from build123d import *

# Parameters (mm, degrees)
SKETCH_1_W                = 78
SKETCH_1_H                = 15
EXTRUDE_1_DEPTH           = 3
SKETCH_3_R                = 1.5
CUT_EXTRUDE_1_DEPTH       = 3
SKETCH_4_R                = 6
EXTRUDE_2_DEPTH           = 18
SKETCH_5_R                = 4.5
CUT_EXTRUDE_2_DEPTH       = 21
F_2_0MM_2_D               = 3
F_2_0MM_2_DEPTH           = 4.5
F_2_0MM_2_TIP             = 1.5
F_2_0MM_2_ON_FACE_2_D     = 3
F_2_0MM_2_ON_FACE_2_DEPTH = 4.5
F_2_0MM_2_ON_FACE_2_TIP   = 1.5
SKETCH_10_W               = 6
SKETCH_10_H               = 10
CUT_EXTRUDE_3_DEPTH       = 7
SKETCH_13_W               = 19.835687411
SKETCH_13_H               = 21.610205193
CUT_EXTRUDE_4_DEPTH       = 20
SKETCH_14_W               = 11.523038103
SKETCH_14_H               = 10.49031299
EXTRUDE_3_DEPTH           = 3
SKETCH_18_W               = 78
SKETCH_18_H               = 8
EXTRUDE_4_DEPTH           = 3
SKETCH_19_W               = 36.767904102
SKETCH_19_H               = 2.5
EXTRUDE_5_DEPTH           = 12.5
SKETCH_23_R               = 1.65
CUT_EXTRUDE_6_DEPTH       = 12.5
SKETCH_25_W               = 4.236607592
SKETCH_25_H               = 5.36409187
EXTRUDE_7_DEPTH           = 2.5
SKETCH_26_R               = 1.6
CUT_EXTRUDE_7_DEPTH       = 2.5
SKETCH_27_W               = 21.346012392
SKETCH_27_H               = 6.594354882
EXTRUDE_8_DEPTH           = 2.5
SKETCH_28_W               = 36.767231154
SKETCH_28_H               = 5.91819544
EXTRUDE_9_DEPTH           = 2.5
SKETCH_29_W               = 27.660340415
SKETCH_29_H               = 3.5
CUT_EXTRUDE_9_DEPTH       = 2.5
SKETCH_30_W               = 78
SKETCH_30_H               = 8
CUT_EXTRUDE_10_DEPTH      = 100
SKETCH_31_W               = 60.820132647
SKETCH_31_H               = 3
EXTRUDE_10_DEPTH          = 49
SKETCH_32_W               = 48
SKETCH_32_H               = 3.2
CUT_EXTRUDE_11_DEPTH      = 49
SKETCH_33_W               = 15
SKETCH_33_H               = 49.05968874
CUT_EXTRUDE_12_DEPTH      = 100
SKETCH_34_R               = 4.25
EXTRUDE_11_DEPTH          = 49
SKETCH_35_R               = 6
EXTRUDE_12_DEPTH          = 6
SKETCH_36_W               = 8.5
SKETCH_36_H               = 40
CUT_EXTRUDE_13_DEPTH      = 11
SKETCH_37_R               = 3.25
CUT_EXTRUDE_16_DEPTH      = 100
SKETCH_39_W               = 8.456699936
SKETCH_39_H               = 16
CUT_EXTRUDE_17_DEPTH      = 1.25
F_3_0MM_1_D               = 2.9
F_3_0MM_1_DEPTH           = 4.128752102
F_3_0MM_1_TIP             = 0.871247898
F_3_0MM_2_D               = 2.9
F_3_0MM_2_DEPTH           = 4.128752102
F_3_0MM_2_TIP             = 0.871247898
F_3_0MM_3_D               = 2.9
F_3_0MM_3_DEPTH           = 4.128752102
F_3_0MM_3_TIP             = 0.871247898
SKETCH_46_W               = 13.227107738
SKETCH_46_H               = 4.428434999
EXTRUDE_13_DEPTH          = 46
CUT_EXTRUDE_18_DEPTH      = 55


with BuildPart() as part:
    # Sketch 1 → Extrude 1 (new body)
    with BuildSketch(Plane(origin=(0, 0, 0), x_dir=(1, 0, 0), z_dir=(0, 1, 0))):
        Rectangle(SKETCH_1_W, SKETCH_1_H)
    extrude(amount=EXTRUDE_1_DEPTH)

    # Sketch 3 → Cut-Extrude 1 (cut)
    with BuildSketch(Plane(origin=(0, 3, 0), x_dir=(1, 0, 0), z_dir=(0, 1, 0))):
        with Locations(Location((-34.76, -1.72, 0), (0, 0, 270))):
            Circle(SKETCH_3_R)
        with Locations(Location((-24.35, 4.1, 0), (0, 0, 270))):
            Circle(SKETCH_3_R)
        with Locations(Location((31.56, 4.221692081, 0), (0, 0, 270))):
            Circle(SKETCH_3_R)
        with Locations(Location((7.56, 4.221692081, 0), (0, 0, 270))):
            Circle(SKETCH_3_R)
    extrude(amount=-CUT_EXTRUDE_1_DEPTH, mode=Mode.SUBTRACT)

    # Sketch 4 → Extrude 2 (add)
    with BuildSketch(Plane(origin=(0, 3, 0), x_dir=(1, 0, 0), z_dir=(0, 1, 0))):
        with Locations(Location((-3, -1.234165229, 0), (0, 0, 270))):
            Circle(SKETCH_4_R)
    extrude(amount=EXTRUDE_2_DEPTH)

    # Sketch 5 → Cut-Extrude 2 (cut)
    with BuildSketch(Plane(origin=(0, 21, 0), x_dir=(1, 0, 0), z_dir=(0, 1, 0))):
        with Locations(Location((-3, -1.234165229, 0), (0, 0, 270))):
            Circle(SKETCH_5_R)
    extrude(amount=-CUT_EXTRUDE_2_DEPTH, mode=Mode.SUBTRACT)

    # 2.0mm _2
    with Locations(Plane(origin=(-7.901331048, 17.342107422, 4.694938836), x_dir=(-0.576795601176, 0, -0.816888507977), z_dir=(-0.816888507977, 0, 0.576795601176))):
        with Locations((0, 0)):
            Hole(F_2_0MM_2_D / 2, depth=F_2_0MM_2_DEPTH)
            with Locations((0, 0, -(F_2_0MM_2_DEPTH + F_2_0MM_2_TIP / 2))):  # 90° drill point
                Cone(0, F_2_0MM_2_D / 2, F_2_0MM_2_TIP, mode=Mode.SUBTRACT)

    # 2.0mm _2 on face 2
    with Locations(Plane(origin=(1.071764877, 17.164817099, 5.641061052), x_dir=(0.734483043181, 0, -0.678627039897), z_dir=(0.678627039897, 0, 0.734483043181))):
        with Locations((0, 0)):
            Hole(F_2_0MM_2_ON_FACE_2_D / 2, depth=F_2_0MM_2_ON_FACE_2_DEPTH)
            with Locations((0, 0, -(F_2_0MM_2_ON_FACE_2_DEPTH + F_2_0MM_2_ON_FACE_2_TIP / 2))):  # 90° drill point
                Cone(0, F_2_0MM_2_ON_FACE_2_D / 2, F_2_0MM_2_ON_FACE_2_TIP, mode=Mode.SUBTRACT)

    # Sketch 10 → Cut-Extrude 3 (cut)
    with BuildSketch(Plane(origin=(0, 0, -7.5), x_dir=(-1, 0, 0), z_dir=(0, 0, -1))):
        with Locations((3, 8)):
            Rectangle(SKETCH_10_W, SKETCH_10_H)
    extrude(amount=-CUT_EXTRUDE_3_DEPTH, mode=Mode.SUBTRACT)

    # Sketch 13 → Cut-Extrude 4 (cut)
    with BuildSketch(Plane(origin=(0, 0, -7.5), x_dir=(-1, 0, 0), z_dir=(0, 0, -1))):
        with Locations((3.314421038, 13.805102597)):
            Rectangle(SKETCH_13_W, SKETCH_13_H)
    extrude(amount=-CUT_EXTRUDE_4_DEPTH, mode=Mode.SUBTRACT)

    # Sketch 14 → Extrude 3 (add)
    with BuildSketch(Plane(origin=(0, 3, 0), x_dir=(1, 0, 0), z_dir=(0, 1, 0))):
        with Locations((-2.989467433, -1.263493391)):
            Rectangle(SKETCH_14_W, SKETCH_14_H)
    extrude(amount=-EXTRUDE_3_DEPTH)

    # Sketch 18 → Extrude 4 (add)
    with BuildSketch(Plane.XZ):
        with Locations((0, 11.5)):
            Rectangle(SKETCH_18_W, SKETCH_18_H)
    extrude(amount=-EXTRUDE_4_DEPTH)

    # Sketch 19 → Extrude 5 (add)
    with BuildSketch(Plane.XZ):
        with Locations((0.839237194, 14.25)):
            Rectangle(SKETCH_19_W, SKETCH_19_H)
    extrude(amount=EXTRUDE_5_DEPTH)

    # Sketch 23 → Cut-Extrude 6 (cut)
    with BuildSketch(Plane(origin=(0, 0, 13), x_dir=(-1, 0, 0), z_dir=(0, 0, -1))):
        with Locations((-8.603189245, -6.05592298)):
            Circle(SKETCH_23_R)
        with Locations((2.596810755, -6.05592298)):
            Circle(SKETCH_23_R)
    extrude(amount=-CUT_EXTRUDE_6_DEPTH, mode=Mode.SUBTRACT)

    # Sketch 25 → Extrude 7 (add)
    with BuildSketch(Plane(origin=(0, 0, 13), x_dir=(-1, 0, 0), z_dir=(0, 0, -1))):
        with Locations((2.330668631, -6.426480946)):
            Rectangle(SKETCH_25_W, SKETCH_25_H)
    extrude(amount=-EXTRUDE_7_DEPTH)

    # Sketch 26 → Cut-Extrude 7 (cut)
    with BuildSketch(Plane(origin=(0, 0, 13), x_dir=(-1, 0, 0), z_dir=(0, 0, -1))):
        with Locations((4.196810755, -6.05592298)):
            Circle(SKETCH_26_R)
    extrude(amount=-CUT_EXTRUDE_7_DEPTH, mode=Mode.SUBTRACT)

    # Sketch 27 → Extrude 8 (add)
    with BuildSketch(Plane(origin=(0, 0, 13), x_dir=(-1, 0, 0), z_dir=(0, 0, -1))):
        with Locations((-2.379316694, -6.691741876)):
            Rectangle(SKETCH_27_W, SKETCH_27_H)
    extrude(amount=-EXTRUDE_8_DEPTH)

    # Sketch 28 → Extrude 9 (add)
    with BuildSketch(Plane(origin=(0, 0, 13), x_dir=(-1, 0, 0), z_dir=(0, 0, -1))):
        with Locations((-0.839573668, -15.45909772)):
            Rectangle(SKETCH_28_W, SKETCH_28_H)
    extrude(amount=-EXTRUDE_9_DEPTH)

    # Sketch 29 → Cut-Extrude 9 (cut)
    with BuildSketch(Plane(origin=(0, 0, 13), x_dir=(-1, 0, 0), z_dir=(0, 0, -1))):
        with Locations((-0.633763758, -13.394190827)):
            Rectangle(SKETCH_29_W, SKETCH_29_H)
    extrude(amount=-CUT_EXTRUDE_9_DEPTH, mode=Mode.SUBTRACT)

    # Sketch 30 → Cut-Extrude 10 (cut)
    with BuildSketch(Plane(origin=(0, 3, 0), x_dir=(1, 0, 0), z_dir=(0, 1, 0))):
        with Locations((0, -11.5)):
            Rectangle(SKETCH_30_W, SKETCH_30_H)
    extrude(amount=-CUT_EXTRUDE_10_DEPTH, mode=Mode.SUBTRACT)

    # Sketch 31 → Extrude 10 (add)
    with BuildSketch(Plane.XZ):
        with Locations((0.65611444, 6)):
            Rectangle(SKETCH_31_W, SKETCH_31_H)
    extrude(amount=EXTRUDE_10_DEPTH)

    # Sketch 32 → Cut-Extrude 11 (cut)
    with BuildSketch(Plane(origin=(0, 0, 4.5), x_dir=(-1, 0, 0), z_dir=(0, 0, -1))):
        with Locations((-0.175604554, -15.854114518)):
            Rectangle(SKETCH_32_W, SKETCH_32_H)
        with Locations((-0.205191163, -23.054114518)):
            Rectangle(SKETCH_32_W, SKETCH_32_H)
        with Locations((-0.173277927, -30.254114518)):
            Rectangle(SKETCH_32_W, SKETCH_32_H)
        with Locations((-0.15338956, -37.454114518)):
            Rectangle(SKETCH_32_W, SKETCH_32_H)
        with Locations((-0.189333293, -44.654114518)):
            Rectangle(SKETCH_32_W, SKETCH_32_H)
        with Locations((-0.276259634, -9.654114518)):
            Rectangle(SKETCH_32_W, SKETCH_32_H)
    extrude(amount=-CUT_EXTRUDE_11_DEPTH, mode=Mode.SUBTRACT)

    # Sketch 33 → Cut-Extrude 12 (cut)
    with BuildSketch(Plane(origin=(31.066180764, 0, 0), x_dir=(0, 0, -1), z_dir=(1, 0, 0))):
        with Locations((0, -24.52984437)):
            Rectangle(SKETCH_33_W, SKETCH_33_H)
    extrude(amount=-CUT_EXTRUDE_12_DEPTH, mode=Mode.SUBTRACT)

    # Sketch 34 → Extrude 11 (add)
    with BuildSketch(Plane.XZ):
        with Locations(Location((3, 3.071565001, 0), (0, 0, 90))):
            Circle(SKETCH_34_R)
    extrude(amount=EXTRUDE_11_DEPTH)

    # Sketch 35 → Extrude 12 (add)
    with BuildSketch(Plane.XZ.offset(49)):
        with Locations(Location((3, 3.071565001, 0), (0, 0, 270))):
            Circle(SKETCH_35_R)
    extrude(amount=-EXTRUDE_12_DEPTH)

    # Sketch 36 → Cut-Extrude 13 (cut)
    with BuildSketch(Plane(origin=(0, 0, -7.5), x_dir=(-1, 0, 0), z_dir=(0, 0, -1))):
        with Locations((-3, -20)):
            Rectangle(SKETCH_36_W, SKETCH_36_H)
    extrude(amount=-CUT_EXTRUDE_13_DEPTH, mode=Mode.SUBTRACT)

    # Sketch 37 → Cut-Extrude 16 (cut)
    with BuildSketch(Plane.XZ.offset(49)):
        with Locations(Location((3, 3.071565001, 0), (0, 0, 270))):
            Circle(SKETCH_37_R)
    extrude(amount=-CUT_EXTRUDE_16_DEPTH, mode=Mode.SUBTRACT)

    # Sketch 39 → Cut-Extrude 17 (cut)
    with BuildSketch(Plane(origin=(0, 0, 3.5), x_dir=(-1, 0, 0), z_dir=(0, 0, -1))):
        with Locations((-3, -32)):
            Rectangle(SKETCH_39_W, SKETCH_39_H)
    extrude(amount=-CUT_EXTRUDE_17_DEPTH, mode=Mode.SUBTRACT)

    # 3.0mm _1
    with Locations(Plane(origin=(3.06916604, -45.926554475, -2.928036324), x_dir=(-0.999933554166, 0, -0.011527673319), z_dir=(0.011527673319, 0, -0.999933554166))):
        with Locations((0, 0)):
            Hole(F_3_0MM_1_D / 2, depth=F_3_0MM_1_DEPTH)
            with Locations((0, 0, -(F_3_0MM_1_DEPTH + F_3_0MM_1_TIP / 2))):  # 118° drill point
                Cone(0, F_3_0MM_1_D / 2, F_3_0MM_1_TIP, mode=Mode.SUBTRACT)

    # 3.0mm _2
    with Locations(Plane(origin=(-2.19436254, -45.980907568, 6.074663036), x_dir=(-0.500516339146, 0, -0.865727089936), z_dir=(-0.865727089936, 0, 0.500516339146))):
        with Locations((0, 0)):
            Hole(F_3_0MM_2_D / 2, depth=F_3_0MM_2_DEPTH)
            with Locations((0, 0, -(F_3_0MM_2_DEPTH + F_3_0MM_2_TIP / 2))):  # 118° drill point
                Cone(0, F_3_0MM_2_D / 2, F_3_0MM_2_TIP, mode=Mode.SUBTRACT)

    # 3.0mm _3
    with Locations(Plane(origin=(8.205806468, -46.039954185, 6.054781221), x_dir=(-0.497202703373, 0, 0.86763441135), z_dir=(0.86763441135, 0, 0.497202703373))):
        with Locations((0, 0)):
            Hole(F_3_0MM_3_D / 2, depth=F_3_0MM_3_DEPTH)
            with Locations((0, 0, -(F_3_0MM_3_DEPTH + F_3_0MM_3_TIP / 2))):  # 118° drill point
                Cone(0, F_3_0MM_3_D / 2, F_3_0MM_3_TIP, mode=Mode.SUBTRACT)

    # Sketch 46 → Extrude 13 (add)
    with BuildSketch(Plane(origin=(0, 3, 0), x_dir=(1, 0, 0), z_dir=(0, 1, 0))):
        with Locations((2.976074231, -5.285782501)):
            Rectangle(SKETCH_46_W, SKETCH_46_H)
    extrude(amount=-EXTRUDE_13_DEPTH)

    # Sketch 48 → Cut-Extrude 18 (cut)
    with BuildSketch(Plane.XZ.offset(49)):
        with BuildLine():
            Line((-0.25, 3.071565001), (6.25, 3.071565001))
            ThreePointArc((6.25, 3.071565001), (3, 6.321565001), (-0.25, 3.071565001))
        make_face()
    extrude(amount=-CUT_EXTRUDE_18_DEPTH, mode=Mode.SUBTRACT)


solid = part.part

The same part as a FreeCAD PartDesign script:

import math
import FreeCAD as App
import Part
import Sketcher
Q = App.Units.Quantity

doc = App.newDocument("Part")
body = doc.addObject("PartDesign::Body", "Body")

# Sketch on XZ plane
sketch1 = body.newObject("Sketcher::SketchObject", "Sketch")
sketch1.AttachmentSupport = (doc.getObject("XZ_Plane"), [""])
sketch1.MapMode = "FlatFace"
sketch1.addGeometry([
    Part.LineSegment(App.Vector(-39, -7.5, 0), App.Vector(-39, 7.5, 0)),
    Part.LineSegment(App.Vector(-39, 7.5, 0), App.Vector(39, 7.5, 0)),
    Part.LineSegment(App.Vector(39, 7.5, 0), App.Vector(39, -7.5, 0)),
    Part.LineSegment(App.Vector(39, -7.5, 0), App.Vector(-39, -7.5, 0)),
], False)
sketch1.addConstraint([
    Sketcher.Constraint("Coincident", 0, 2, 1, 1),
    Sketcher.Constraint("Coincident", 1, 2, 2, 1),
    Sketcher.Constraint("Coincident", 2, 2, 3, 1),
    Sketcher.Constraint("Coincident", 3, 2, 0, 1),
    Sketcher.Constraint("Vertical", 0),
    Sketcher.Constraint("Horizontal", 1),
    Sketcher.Constraint("Vertical", 2),
    Sketcher.Constraint("Horizontal", 3),
    Sketcher.Constraint("Symmetric", 0, 2, 2, 2, -1, 1),
    Sketcher.Constraint("DistanceX", 1, 1, 1, 2, Q("78 mm")),
    Sketcher.Constraint("DistanceY", 0, 1, 0, 2, Q("15 mm")),
])
pad1 = body.newObject("PartDesign::Pad", "Pad")
pad1.Profile = sketch1
pad1.Length = 3
pad1.Reversed = True

# Sketch on XZ plane
sketch2 = body.newObject("Sketcher::SketchObject", "Sketch001")
sketch2.AttachmentSupport = (doc.getObject("XZ_Plane"), [""])
sketch2.MapMode = "FlatFace"
sketch2.AttachmentOffset = App.Placement(App.Vector(0, 0, -3), App.Rotation())
sketch2.addGeometry([
    Part.Circle(App.Vector(-34.76, 1.72, 0), App.Vector(0, 0, 1), 1.5),
    Part.Circle(App.Vector(-24.35, -4.1, 0), App.Vector(0, 0, 1), 1.5),
    Part.Circle(App.Vector(31.56, -4.221692, 0), App.Vector(0, 0, 1), 1.5),
    Part.Circle(App.Vector(7.56, -4.221692, 0), App.Vector(0, 0, 1), 1.5),
], False)
sketch2.addConstraint([
    Sketcher.Constraint("Equal", 0, 1),
    Sketcher.Constraint("Equal", 1, 2),
    Sketcher.Constraint("Equal", 2, 3),
    Sketcher.Constraint("Horizontal", 2, 3, 3, 3),
    Sketcher.Constraint("Diameter", 0, Q("3 mm")),
    Sketcher.Constraint("DistanceX", 3, 3, 2, 3, Q("24 mm")),
    Sketcher.Constraint("DistanceY", 1, 3, -1, 1, Q("4.1 mm")),
    Sketcher.Constraint("DistanceX", 0, 3, -1, 1, Q("34.76 mm")),
    Sketcher.Constraint("DistanceY", -1, 1, 0, 3, Q("1.72 mm")),
    Sketcher.Constraint("DistanceX", 1, 3, -1, 1, Q("24.35 mm")),
    Sketcher.Constraint("DistanceX", -1, 1, 2, 3, Q("31.56 mm")),
    Sketcher.Constraint("DistanceY", 2, 3, -1, 1, Q("4.221692 mm")),
])
pocket1 = body.newObject("PartDesign::Pocket", "Pocket")
pocket1.Profile = sketch2
pocket1.Length = 3
pocket1.Reversed = True

# Sketch on XZ plane
sketch3 = body.newObject("Sketcher::SketchObject", "Sketch002")
sketch3.AttachmentSupport = (doc.getObject("XZ_Plane"), [""])
sketch3.MapMode = "FlatFace"
sketch3.AttachmentOffset = App.Placement(App.Vector(0, 0, -3), App.Rotation())
sketch3.addGeometry(Part.Circle(App.Vector(-3, 1.234165, 0), App.Vector(0, 0, 1), 6), False)
sketch3.addConstraint([
    Sketcher.Constraint("Diameter", 0, Q("12 mm")),
    Sketcher.Constraint("DistanceX", 0, 3, -1, 1, Q("3 mm")),
    Sketcher.Constraint("DistanceY", -1, 1, 0, 3, Q("1.234165 mm")),
])
pad2 = body.newObject("PartDesign::Pad", "Pad001")
pad2.Profile = sketch3
pad2.Length = 18
pad2.Reversed = True

# Sketch on XZ plane
sketch4 = body.newObject("Sketcher::SketchObject", "Sketch003")
sketch4.AttachmentSupport = (doc.getObject("XZ_Plane"), [""])
sketch4.MapMode = "FlatFace"
sketch4.AttachmentOffset = App.Placement(App.Vector(0, 0, -21), App.Rotation())
sketch4.addGeometry(Part.Circle(App.Vector(-3, 1.234165, 0), App.Vector(0, 0, 1), 4.5), False)
sketch4.addConstraint([
    Sketcher.Constraint("Diameter", 0, Q("9 mm")),
    Sketcher.Constraint("DistanceX", 0, 3, -1, 1, Q("3 mm")),
    Sketcher.Constraint("DistanceY", -1, 1, 0, 3, Q("1.234165 mm")),
])
pocket2 = body.newObject("PartDesign::Pocket", "Pocket001")
pocket2.Profile = sketch4
pocket2.Length = 21
pocket2.Reversed = True

# Sketch on an angled plane
sketch5 = body.newObject("Sketcher::SketchObject", "Sketch004")
sketch5.Placement = App.Placement(App.Vector(-7.484763, 0, 5.284905), App.Rotation(App.Vector(-0.576795601, 0, -0.816888508), App.Vector(0, -1, 0), App.Vector(-0.816888508, 0, 0.576795601), "ZXY"))
sketch5.addGeometry(Part.Circle(App.Vector(0.722211, -17.342107, 0), App.Vector(0, 0, 1), 1.5), False)
sketch5.addConstraint([
    Sketcher.Constraint("Diameter", 0, Q("3 mm")),
    Sketcher.Constraint("DistanceX", -1, 1, 0, 3, Q("0.722211 mm")),
    Sketcher.Constraint("DistanceY", 0, 3, -1, 1, Q("17.342107 mm")),
])
doc.recompute()
hole = body.newObject("PartDesign::Hole", "Hole")
hole.Profile = sketch5
hole.ThreadType = "None"
hole.Diameter = 3
hole.DepthType = "Dimension"
hole.Depth = 4.5
hole.DrillPoint = "Angled"
hole.DrillPointAngle = 90

# Sketch on an angled plane
sketch6 = body.newObject("Sketcher::SketchObject", "Sketch005")
sketch6.Placement = App.Placement(App.Vector(3.305316, 0, 3.577367), App.Rotation(App.Vector(0.734483043, 0, -0.67862704), App.Vector(0, 1, 0), App.Vector(0.67862704, 0, 0.734483043), "ZXY"))
sketch6.addGeometry(Part.Circle(App.Vector(-3.040983, 17.164817, 0), App.Vector(0, 0, 1), 1.5), False)
sketch6.addConstraint([
    Sketcher.Constraint("Diameter", 0, Q("3 mm")),
    Sketcher.Constraint("DistanceX", 0, 3, -1, 1, Q("3.040983 mm")),
    Sketcher.Constraint("DistanceY", -1, 1, 0, 3, Q("17.164817 mm")),
])
doc.recompute()
hole2 = body.newObject("PartDesign::Hole", "Hole001")
hole2.Profile = sketch6
hole2.ThreadType = "None"
hole2.Diameter = 3
hole2.DepthType = "Dimension"
hole2.Depth = 4.5
hole2.DrillPoint = "Angled"
hole2.DrillPointAngle = 90

# Sketch on XY plane
sketch7 = body.newObject("Sketcher::SketchObject", "Sketch006")
sketch7.AttachmentSupport = (doc.getObject("XY_Plane"), [""])
sketch7.MapMode = "FlatFace"
sketch7.AttachmentOffset = App.Placement(App.Vector(0, 0, -7.5), App.Rotation())
sketch7.addGeometry([
    Part.LineSegment(App.Vector(0, 13, 0), App.Vector(0, 3, 0)),
    Part.LineSegment(App.Vector(0, 3, 0), App.Vector(-6, 3, 0)),
    Part.LineSegment(App.Vector(-6, 3, 0), App.Vector(-6, 13, 0)),
    Part.LineSegment(App.Vector(-6, 13, 0), App.Vector(0, 13, 0)),
], False)
sketch7.addConstraint([
    Sketcher.Constraint("Coincident", 0, 2, 1, 1),
    Sketcher.Constraint("Coincident", 1, 2, 2, 1),
    Sketcher.Constraint("Coincident", 2, 2, 3, 1),
    Sketcher.Constraint("Coincident", 3, 2, 0, 1),
    Sketcher.Constraint("Vertical", 0),
    Sketcher.Constraint("Horizontal", 1),
    Sketcher.Constraint("Vertical", 2),
    Sketcher.Constraint("Horizontal", 3),
    Sketcher.Constraint("PointOnObject", 0, 2, -2),
    Sketcher.Constraint("DistanceX", 1, 2, 1, 1, Q("6 mm")),
    Sketcher.Constraint("DistanceY", 0, 2, 0, 1, Q("10 mm")),
    Sketcher.Constraint("DistanceY", -1, 1, 0, 2, Q("3 mm")),
])
pocket3 = body.newObject("PartDesign::Pocket", "Pocket002")
pocket3.Profile = sketch7
pocket3.Length = 7
pocket3.Reversed = True

# Sketch on XY plane
sketch8 = body.newObject("Sketcher::SketchObject", "Sketch007")
sketch8.AttachmentSupport = (doc.getObject("XY_Plane"), [""])
sketch8.MapMode = "FlatFace"
sketch8.AttachmentOffset = App.Placement(App.Vector(0, 0, -7.5), App.Rotation())
sketch8.addGeometry([
    Part.LineSegment(App.Vector(6.603423, 24.610205, 0), App.Vector(6.603423, 3, 0)),
    Part.LineSegment(App.Vector(6.603423, 3, 0), App.Vector(-13.232265, 3, 0)),
    Part.LineSegment(App.Vector(-13.232265, 3, 0), App.Vector(-13.232265, 24.610205, 0)),
    Part.LineSegment(App.Vector(-13.232265, 24.610205, 0), App.Vector(6.603423, 24.610205, 0)),
], False)
sketch8.addConstraint([
    Sketcher.Constraint("Coincident", 0, 2, 1, 1),
    Sketcher.Constraint("Coincident", 1, 2, 2, 1),
    Sketcher.Constraint("Coincident", 2, 2, 3, 1),
    Sketcher.Constraint("Coincident", 3, 2, 0, 1),
    Sketcher.Constraint("Vertical", 0),
    Sketcher.Constraint("Horizontal", 1),
    Sketcher.Constraint("Vertical", 2),
    Sketcher.Constraint("Horizontal", 3),
    Sketcher.Constraint("DistanceY", -1, 1, 0, 2, Q("3 mm")),
    Sketcher.Constraint("DistanceX", 1, 2, 1, 1, Q("19.835687 mm")),
    Sketcher.Constraint("DistanceY", 0, 2, 0, 1, Q("21.610205 mm")),
    Sketcher.Constraint("DistanceX", -1, 1, 0, 2, Q("6.603423 mm")),
])
pocket4 = body.newObject("PartDesign::Pocket", "Pocket003")
pocket4.Profile = sketch8
pocket4.Length = 20
pocket4.Reversed = True

# Sketch on XZ plane
sketch9 = body.newObject("Sketcher::SketchObject", "Sketch008")
sketch9.AttachmentSupport = (doc.getObject("XZ_Plane"), [""])
sketch9.MapMode = "FlatFace"
sketch9.AttachmentOffset = App.Placement(App.Vector(0, 0, -3), App.Rotation())
sketch9.addGeometry([
    Part.LineSegment(App.Vector(-8.750986, -3.981663, 0), App.Vector(-8.750986, 6.50865, 0)),
    Part.LineSegment(App.Vector(-8.750986, 6.50865, 0), App.Vector(2.772052, 6.50865, 0)),
    Part.LineSegment(App.Vector(2.772052, 6.50865, 0), App.Vector(2.772052, -3.981663, 0)),
    Part.LineSegment(App.Vector(2.772052, -3.981663, 0), App.Vector(-8.750986, -3.981663, 0)),
], False)
sketch9.addConstraint([
    Sketcher.Constraint("Coincident", 0, 2, 1, 1),
    Sketcher.Constraint("Coincident", 1, 2, 2, 1),
    Sketcher.Constraint("Coincident", 2, 2, 3, 1),
    Sketcher.Constraint("Coincident", 3, 2, 0, 1),
    Sketcher.Constraint("Vertical", 0),
    Sketcher.Constraint("Horizontal", 1),
    Sketcher.Constraint("Vertical", 2),
    Sketcher.Constraint("Horizontal", 3),
    Sketcher.Constraint("DistanceX", 1, 1, 1, 2, Q("11.523038 mm")),
    Sketcher.Constraint("DistanceY", 0, 1, 0, 2, Q("10.490313 mm")),
    Sketcher.Constraint("DistanceY", -1, 1, 0, 2, Q("6.50865 mm")),
    Sketcher.Constraint("DistanceX", -1, 1, 1, 2, Q("2.772052 mm")),
])
pad3 = body.newObject("PartDesign::Pad", "Pad002")
pad3.Profile = sketch9
pad3.Length = 3

# Sketch on XZ plane
sketch10 = body.newObject("Sketcher::SketchObject", "Sketch009")
sketch10.AttachmentSupport = (doc.getObject("XZ_Plane"), [""])
sketch10.MapMode = "FlatFace"
sketch10.addGeometry([
    Part.LineSegment(App.Vector(-39, 15.5, 0), App.Vector(-39, 7.5, 0)),
    Part.LineSegment(App.Vector(-39, 7.5, 0), App.Vector(39, 7.5, 0)),
    Part.LineSegment(App.Vector(39, 7.5, 0), App.Vector(39, 15.5, 0)),
    Part.LineSegment(App.Vector(39, 15.5, 0), App.Vector(-39, 15.5, 0)),
], False)
sketch10.addConstraint([
    Sketcher.Constraint("Coincident", 0, 2, 1, 1),
    Sketcher.Constraint("Coincident", 1, 2, 2, 1),
    Sketcher.Constraint("Coincident", 2, 2, 3, 1),
    Sketcher.Constraint("Coincident", 3, 2, 0, 1),
    Sketcher.Constraint("Vertical", 0),
    Sketcher.Constraint("Horizontal", 1),
    Sketcher.Constraint("Vertical", 2),
    Sketcher.Constraint("Horizontal", 3),
    Sketcher.Constraint("DistanceX", 1, 1, 1, 2, Q("78 mm")),
    Sketcher.Constraint("DistanceY", 0, 2, 0, 1, Q("8 mm")),
    Sketcher.Constraint("DistanceX", 0, 2, -1, 1, Q("39 mm")),
    Sketcher.Constraint("DistanceY", -1, 1, 0, 2, Q("7.5 mm")),
])
pad4 = body.newObject("PartDesign::Pad", "Pad003")
pad4.Profile = sketch10
pad4.Length = 3
pad4.Reversed = True

# Sketch on XZ plane
sketch11 = body.newObject("Sketcher::SketchObject", "Sketch010")
sketch11.AttachmentSupport = (doc.getObject("XZ_Plane"), [""])
sketch11.MapMode = "FlatFace"
sketch11.addGeometry([
    Part.LineSegment(App.Vector(-17.544715, 15.5, 0), App.Vector(-17.544715, 13, 0)),
    Part.LineSegment(App.Vector(-17.544715, 13, 0), App.Vector(19.223189, 13, 0)),
    Part.LineSegment(App.Vector(19.223189, 13, 0), App.Vector(19.223189, 15.5, 0)),
    Part.LineSegment(App.Vector(19.223189, 15.5, 0), App.Vector(-17.544715, 15.5, 0)),
], False)
sketch11.addConstraint([
    Sketcher.Constraint("Coincident", 0, 2, 1, 1),
    Sketcher.Constraint("Coincident", 1, 2, 2, 1),
    Sketcher.Constraint("Coincident", 2, 2, 3, 1),
    Sketcher.Constraint("Coincident", 3, 2, 0, 1),
    Sketcher.Constraint("Vertical", 0),
    Sketcher.Constraint("Horizontal", 1),
    Sketcher.Constraint("Vertical", 2),
    Sketcher.Constraint("Horizontal", 3),
    Sketcher.Constraint("DistanceY", 0, 2, 0, 1, Q("2.5 mm")),
    Sketcher.Constraint("DistanceY", -1, 1, 0, 2, Q("13 mm")),
    Sketcher.Constraint("DistanceX", 1, 1, 1, 2, Q("36.767904 mm")),
    Sketcher.Constraint("DistanceX", -1, 1, 1, 2, Q("19.223189 mm")),
])
pad5 = body.newObject("PartDesign::Pad", "Pad004")
pad5.Profile = sketch11
pad5.Length = 12.5

# Sketch on XY plane
sketch12 = body.newObject("Sketcher::SketchObject", "Sketch011")
sketch12.AttachmentSupport = (doc.getObject("XY_Plane"), [""])
sketch12.MapMode = "FlatFace"
sketch12.AttachmentOffset = App.Placement(App.Vector(0, 0, 13), App.Rotation())
sketch12.addGeometry([
    Part.Circle(App.Vector(8.603189, -6.055923, 0), App.Vector(0, 0, 1), 1.65),
    Part.Circle(App.Vector(-2.596811, -6.055923, 0), App.Vector(0, 0, 1), 1.65),
], False)
sketch12.addConstraint([
    Sketcher.Constraint("Equal", 0, 1),
    Sketcher.Constraint("Horizontal", 0, 3, 1, 3),
    Sketcher.Constraint("Diameter", 0, Q("3.3 mm")),
    Sketcher.Constraint("DistanceX", 1, 3, 0, 3, Q("11.2 mm")),
    Sketcher.Constraint("DistanceX", -1, 1, 0, 3, Q("8.603189 mm")),
    Sketcher.Constraint("DistanceY", 0, 3, -1, 1, Q("6.055923 mm")),
])
pocket5 = body.newObject("PartDesign::Pocket", "Pocket004")
pocket5.Profile = sketch12
pocket5.Length = 12.5
pocket5.Reversed = True

# Sketch on XY plane
sketch13 = body.newObject("Sketcher::SketchObject", "Sketch012")
sketch13.AttachmentSupport = (doc.getObject("XY_Plane"), [""])
sketch13.MapMode = "FlatFace"
sketch13.AttachmentOffset = App.Placement(App.Vector(0, 0, 13), App.Rotation())
sketch13.addGeometry([
    Part.LineSegment(App.Vector(-0.212365, -3.744435, 0), App.Vector(-0.212365, -9.108527, 0)),
    Part.LineSegment(App.Vector(-0.212365, -9.108527, 0), App.Vector(-4.448972, -9.108527, 0)),
    Part.LineSegment(App.Vector(-4.448972, -9.108527, 0), App.Vector(-4.448972, -3.744435, 0)),
    Part.LineSegment(App.Vector(-4.448972, -3.744435, 0), App.Vector(-0.212365, -3.744435, 0)),
], False)
sketch13.addConstraint([
    Sketcher.Constraint("Coincident", 0, 2, 1, 1),
    Sketcher.Constraint("Coincident", 1, 2, 2, 1),
    Sketcher.Constraint("Coincident", 2, 2, 3, 1),
    Sketcher.Constraint("Coincident", 3, 2, 0, 1),
    Sketcher.Constraint("Vertical", 0),
    Sketcher.Constraint("Horizontal", 1),
    Sketcher.Constraint("Vertical", 2),
    Sketcher.Constraint("Horizontal", 3),
    Sketcher.Constraint("DistanceY", 0, 2, 0, 1, Q("5.364092 mm")),
    Sketcher.Constraint("DistanceX", 1, 2, 1, 1, Q("4.236608 mm")),
    Sketcher.Constraint("DistanceX", 0, 2, -1, 1, Q("0.212365 mm")),
    Sketcher.Constraint("DistanceY", 0, 2, -1, 1, Q("9.108527 mm")),
])
pad6 = body.newObject("PartDesign::Pad", "Pad005")
pad6.Profile = sketch13
pad6.Length = 2.5

# Sketch on XY plane
sketch14 = body.newObject("Sketcher::SketchObject", "Sketch013")
sketch14.AttachmentSupport = (doc.getObject("XY_Plane"), [""])
sketch14.MapMode = "FlatFace"
sketch14.AttachmentOffset = App.Placement(App.Vector(0, 0, 13), App.Rotation())
sketch14.addGeometry(Part.Circle(App.Vector(-4.196811, -6.055923, 0), App.Vector(0, 0, 1), 1.6), False)
sketch14.addConstraint([
    Sketcher.Constraint("Diameter", 0, Q("3.2 mm")),
    Sketcher.Constraint("DistanceX", 0, 3, -1, 1, Q("4.196811 mm")),
    Sketcher.Constraint("DistanceY", 0, 3, -1, 1, Q("6.055923 mm")),
])
pocket6 = body.newObject("PartDesign::Pocket", "Pocket005")
pocket6.Profile = sketch14
pocket6.Length = 2.5
pocket6.Reversed = True

# Sketch on XY plane
sketch15 = body.newObject("Sketcher::SketchObject", "Sketch014")
sketch15.AttachmentSupport = (doc.getObject("XY_Plane"), [""])
sketch15.MapMode = "FlatFace"
sketch15.AttachmentOffset = App.Placement(App.Vector(0, 0, 13), App.Rotation())
sketch15.addGeometry([
    Part.LineSegment(App.Vector(13.052323, -3.394564, 0), App.Vector(13.052323, -9.988919, 0)),
    Part.LineSegment(App.Vector(13.052323, -9.988919, 0), App.Vector(-8.29369, -9.988919, 0)),
    Part.LineSegment(App.Vector(-8.29369, -9.988919, 0), App.Vector(-8.29369, -3.394564, 0)),
    Part.LineSegment(App.Vector(-8.29369, -3.394564, 0), App.Vector(13.052323, -3.394564, 0)),
], False)
sketch15.addConstraint([
    Sketcher.Constraint("Coincident", 0, 2, 1, 1),
    Sketcher.Constraint("Coincident", 1, 2, 2, 1),
    Sketcher.Constraint("Coincident", 2, 2, 3, 1),
    Sketcher.Constraint("Coincident", 3, 2, 0, 1),
    Sketcher.Constraint("Vertical", 0),
    Sketcher.Constraint("Horizontal", 1),
    Sketcher.Constraint("Vertical", 2),
    Sketcher.Constraint("Horizontal", 3),
    Sketcher.Constraint("DistanceX", 1, 2, 1, 1, Q("21.346012 mm")),
    Sketcher.Constraint("DistanceY", 0, 2, 0, 1, Q("6.594355 mm")),
    Sketcher.Constraint("DistanceY", 0, 2, -1, 1, Q("9.988919 mm")),
    Sketcher.Constraint("DistanceX", 1, 2, -1, 1, Q("8.29369 mm")),
])
pad7 = body.newObject("PartDesign::Pad", "Pad006")
pad7.Profile = sketch15
pad7.Length = 2.5

# Sketch on XY plane
sketch16 = body.newObject("Sketcher::SketchObject", "Sketch015")
sketch16.AttachmentSupport = (doc.getObject("XY_Plane"), [""])
sketch16.MapMode = "FlatFace"
sketch16.AttachmentOffset = App.Placement(App.Vector(0, 0, 13), App.Rotation())
sketch16.addGeometry([
    Part.LineSegment(App.Vector(19.223189, -12.5, 0), App.Vector(19.223189, -18.418195, 0)),
    Part.LineSegment(App.Vector(19.223189, -18.418195, 0), App.Vector(-17.544042, -18.418195, 0)),
    Part.LineSegment(App.Vector(-17.544042, -18.418195, 0), App.Vector(-17.544042, -12.5, 0)),
    Part.LineSegment(App.Vector(-17.544042, -12.5, 0), App.Vector(19.223189, -12.5, 0)),
], False)
sketch16.addConstraint([
    Sketcher.Constraint("Coincident", 0, 2, 1, 1),
    Sketcher.Constraint("Coincident", 1, 2, 2, 1),
    Sketcher.Constraint("Coincident", 2, 2, 3, 1),
    Sketcher.Constraint("Coincident", 3, 2, 0, 1),
    Sketcher.Constraint("Vertical", 0),
    Sketcher.Constraint("Horizontal", 1),
    Sketcher.Constraint("Vertical", 2),
    Sketcher.Constraint("Horizontal", 3),
    Sketcher.Constraint("DistanceY", 2, 2, -1, 1, Q("12.5 mm")),
    Sketcher.Constraint("DistanceX", 1, 2, 1, 1, Q("36.767231 mm")),
    Sketcher.Constraint("DistanceY", 0, 2, 0, 1, Q("5.918195 mm")),
    Sketcher.Constraint("DistanceX", -1, 1, 0, 2, Q("19.223189 mm")),
])
pad8 = body.newObject("PartDesign::Pad", "Pad007")
pad8.Profile = sketch16
pad8.Length = 2.5

# Sketch on XY plane
sketch17 = body.newObject("Sketcher::SketchObject", "Sketch016")
sketch17.AttachmentSupport = (doc.getObject("XY_Plane"), [""])
sketch17.MapMode = "FlatFace"
sketch17.AttachmentOffset = App.Placement(App.Vector(0, 0, 13), App.Rotation())
sketch17.addGeometry([
    Part.LineSegment(App.Vector(14.463934, -11.644191, 0), App.Vector(14.463934, -15.144191, 0)),
    Part.LineSegment(App.Vector(14.463934, -15.144191, 0), App.Vector(-13.196406, -15.144191, 0)),
    Part.LineSegment(App.Vector(-13.196406, -15.144191, 0), App.Vector(-13.196406, -11.644191, 0)),
    Part.LineSegment(App.Vector(-13.196406, -11.644191, 0), App.Vector(14.463934, -11.644191, 0)),
], False)
sketch17.addConstraint([
    Sketcher.Constraint("Coincident", 0, 2, 1, 1),
    Sketcher.Constraint("Coincident", 1, 2, 2, 1),
    Sketcher.Constraint("Coincident", 2, 2, 3, 1),
    Sketcher.Constraint("Coincident", 3, 2, 0, 1),
    Sketcher.Constraint("Vertical", 0),
    Sketcher.Constraint("Horizontal", 1),
    Sketcher.Constraint("Vertical", 2),
    Sketcher.Constraint("Horizontal", 3),
    Sketcher.Constraint("DistanceY", 0, 2, 0, 1, Q("3.5 mm")),
    Sketcher.Constraint("DistanceX", 1, 2, 1, 1, Q("27.66034 mm")),
    Sketcher.Constraint("DistanceY", 0, 2, -1, 1, Q("15.144191 mm")),
    Sketcher.Constraint("DistanceX", -1, 1, 0, 2, Q("14.463934 mm")),
])
pocket7 = body.newObject("PartDesign::Pocket", "Pocket006")
pocket7.Profile = sketch17
pocket7.Length = 2.5
pocket7.Reversed = True

# Sketch on XZ plane
sketch18 = body.newObject("Sketcher::SketchObject", "Sketch017")
sketch18.AttachmentSupport = (doc.getObject("XZ_Plane"), [""])
sketch18.MapMode = "FlatFace"
sketch18.AttachmentOffset = App.Placement(App.Vector(0, 0, -3), App.Rotation())
sketch18.addGeometry([
    Part.LineSegment(App.Vector(-39, 7.5, 0), App.Vector(-39, 15.5, 0)),
    Part.LineSegment(App.Vector(-39, 15.5, 0), App.Vector(39, 15.5, 0)),
    Part.LineSegment(App.Vector(39, 15.5, 0), App.Vector(39, 7.5, 0)),
    Part.LineSegment(App.Vector(39, 7.5, 0), App.Vector(-39, 7.5, 0)),
], False)
sketch18.addConstraint([
    Sketcher.Constraint("Coincident", 0, 2, 1, 1),
    Sketcher.Constraint("Coincident", 1, 2, 2, 1),
    Sketcher.Constraint("Coincident", 2, 2, 3, 1),
    Sketcher.Constraint("Coincident", 3, 2, 0, 1),
    Sketcher.Constraint("Vertical", 0),
    Sketcher.Constraint("Horizontal", 1),
    Sketcher.Constraint("Vertical", 2),
    Sketcher.Constraint("Horizontal", 3),
    Sketcher.Constraint("DistanceX", 1, 1, 1, 2, Q("78 mm")),
    Sketcher.Constraint("DistanceY", 0, 1, 0, 2, Q("8 mm")),
    Sketcher.Constraint("DistanceX", 0, 2, -1, 1, Q("39 mm")),
    Sketcher.Constraint("DistanceY", -1, 1, 0, 2, Q("15.5 mm")),
])
pocket8 = body.newObject("PartDesign::Pocket", "Pocket007")
pocket8.Profile = sketch18
pocket8.Length = 100
pocket8.Reversed = True

# Sketch on XZ plane
sketch19 = body.newObject("Sketcher::SketchObject", "Sketch018")
sketch19.AttachmentSupport = (doc.getObject("XZ_Plane"), [""])
sketch19.MapMode = "FlatFace"
sketch19.addGeometry([
    Part.LineSegment(App.Vector(-29.753952, 7.5, 0), App.Vector(-29.753952, 4.5, 0)),
    Part.LineSegment(App.Vector(-29.753952, 4.5, 0), App.Vector(31.066181, 4.5, 0)),
    Part.LineSegment(App.Vector(31.066181, 4.5, 0), App.Vector(31.066181, 7.5, 0)),
    Part.LineSegment(App.Vector(31.066181, 7.5, 0), App.Vector(-29.753952, 7.5, 0)),
], False)
sketch19.addConstraint([
    Sketcher.Constraint("Coincident", 0, 2, 1, 1),
    Sketcher.Constraint("Coincident", 1, 2, 2, 1),
    Sketcher.Constraint("Coincident", 2, 2, 3, 1),
    Sketcher.Constraint("Coincident", 3, 2, 0, 1),
    Sketcher.Constraint("Vertical", 0),
    Sketcher.Constraint("Horizontal", 1),
    Sketcher.Constraint("Vertical", 2),
    Sketcher.Constraint("Horizontal", 3),
    Sketcher.Constraint("DistanceY", 0, 2, 0, 1, Q("3 mm")),
    Sketcher.Constraint("DistanceY", -1, 1, 0, 2, Q("4.5 mm")),
    Sketcher.Constraint("DistanceX", 1, 1, 1, 2, Q("60.820133 mm")),
    Sketcher.Constraint("DistanceX", 0, 2, -1, 1, Q("29.753952 mm")),
])
pad9 = body.newObject("PartDesign::Pad", "Pad008")
pad9.Profile = sketch19
pad9.Length = 49

# Sketch on XY plane
sketch20 = body.newObject("Sketcher::SketchObject", "Sketch019")
sketch20.AttachmentSupport = (doc.getObject("XY_Plane"), [""])
sketch20.MapMode = "FlatFace"
sketch20.AttachmentOffset = App.Placement(App.Vector(0, 0, 4.5), App.Rotation())
sketch20.addGeometry([
    Part.LineSegment(App.Vector(24.175605, -14.254115, 0), App.Vector(24.175605, -17.454115, 0)),  # 0
    Part.LineSegment(App.Vector(24.175605, -17.454115, 0), App.Vector(-23.824395, -17.454115, 0)),  # 1
    Part.LineSegment(App.Vector(-23.824395, -17.454115, 0), App.Vector(-23.824395, -14.254115, 0)),  # 2
    Part.LineSegment(App.Vector(-23.824395, -14.254115, 0), App.Vector(24.175605, -14.254115, 0)),  # 3
    Part.LineSegment(App.Vector(24.205191, -21.454115, 0), App.Vector(24.205191, -24.654115, 0)),  # 4
    Part.LineSegment(App.Vector(24.205191, -24.654115, 0), App.Vector(-23.794809, -24.654115, 0)),  # 5
    Part.LineSegment(App.Vector(-23.794809, -24.654115, 0), App.Vector(-23.794809, -21.454115, 0)),  # 6
    Part.LineSegment(App.Vector(-23.794809, -21.454115, 0), App.Vector(24.205191, -21.454115, 0)),  # 7
    Part.LineSegment(App.Vector(24.173278, -28.654115, 0), App.Vector(24.173278, -31.854115, 0)),  # 8
    Part.LineSegment(App.Vector(24.173278, -31.854115, 0), App.Vector(-23.826722, -31.854115, 0)),  # 9
    Part.LineSegment(App.Vector(-23.826722, -31.854115, 0), App.Vector(-23.826722, -28.654115, 0)),  # 10
    Part.LineSegment(App.Vector(-23.826722, -28.654115, 0), App.Vector(24.173278, -28.654115, 0)),  # 11
    Part.LineSegment(App.Vector(24.15339, -35.854115, 0), App.Vector(24.15339, -39.054115, 0)),  # 12
    Part.LineSegment(App.Vector(24.15339, -39.054115, 0), App.Vector(-23.84661, -39.054115, 0)),  # 13
    Part.LineSegment(App.Vector(-23.84661, -39.054115, 0), App.Vector(-23.84661, -35.854115, 0)),  # 14
    Part.LineSegment(App.Vector(-23.84661, -35.854115, 0), App.Vector(24.15339, -35.854115, 0)),  # 15
    Part.LineSegment(App.Vector(24.189333, -43.054115, 0), App.Vector(24.189333, -46.254115, 0)),  # 16
    Part.LineSegment(App.Vector(24.189333, -46.254115, 0), App.Vector(-23.810667, -46.254115, 0)),  # 17
    Part.LineSegment(App.Vector(-23.810667, -46.254115, 0), App.Vector(-23.810667, -43.054115, 0)),  # 18
    Part.LineSegment(App.Vector(-23.810667, -43.054115, 0), App.Vector(24.189333, -43.054115, 0)),  # 19
    Part.LineSegment(App.Vector(24.27626, -8.054115, 0), App.Vector(24.27626, -11.254115, 0)),  # 20
    Part.LineSegment(App.Vector(24.27626, -11.254115, 0), App.Vector(-23.72374, -11.254115, 0)),  # 21
    Part.LineSegment(App.Vector(-23.72374, -11.254115, 0), App.Vector(-23.72374, -8.054115, 0)),  # 22
    Part.LineSegment(App.Vector(-23.72374, -8.054115, 0), App.Vector(24.27626, -8.054115, 0)),  # 23
], False)
sketch20.addConstraint([
    Sketcher.Constraint("Coincident", 0, 2, 1, 1),
    Sketcher.Constraint("Coincident", 1, 2, 2, 1),
    Sketcher.Constraint("Coincident", 2, 2, 3, 1),
    Sketcher.Constraint("Coincident", 3, 2, 0, 1),
    Sketcher.Constraint("Coincident", 4, 2, 5, 1),
    Sketcher.Constraint("Coincident", 5, 2, 6, 1),
    Sketcher.Constraint("Coincident", 6, 2, 7, 1),
    Sketcher.Constraint("Coincident", 7, 2, 4, 1),
    Sketcher.Constraint("Coincident", 8, 2, 9, 1),
    Sketcher.Constraint("Coincident", 9, 2, 10, 1),
    Sketcher.Constraint("Coincident", 10, 2, 11, 1),
    Sketcher.Constraint("Coincident", 11, 2, 8, 1),
    Sketcher.Constraint("Coincident", 12, 2, 13, 1),
    Sketcher.Constraint("Coincident", 13, 2, 14, 1),
    Sketcher.Constraint("Coincident", 14, 2, 15, 1),
    Sketcher.Constraint("Coincident", 15, 2, 12, 1),
    Sketcher.Constraint("Coincident", 16, 2, 17, 1),
    Sketcher.Constraint("Coincident", 17, 2, 18, 1),
    Sketcher.Constraint("Coincident", 18, 2, 19, 1),
    Sketcher.Constraint("Coincident", 19, 2, 16, 1),
    Sketcher.Constraint("Coincident", 20, 2, 21, 1),
    Sketcher.Constraint("Coincident", 21, 2, 22, 1),
    Sketcher.Constraint("Coincident", 22, 2, 23, 1),
    Sketcher.Constraint("Coincident", 23, 2, 20, 1),
    Sketcher.Constraint("Vertical", 0),
    Sketcher.Constraint("Horizontal", 1),
    Sketcher.Constraint("Vertical", 2),
    Sketcher.Constraint("Horizontal", 3),
    Sketcher.Constraint("Vertical", 4),
    Sketcher.Constraint("Horizontal", 5),
    Sketcher.Constraint("Vertical", 6),
    Sketcher.Constraint("Horizontal", 7),
    Sketcher.Constraint("Vertical", 8),
    Sketcher.Constraint("Horizontal", 9),
    Sketcher.Constraint("Vertical", 10),
    Sketcher.Constraint("Horizontal", 11),
    Sketcher.Constraint("Vertical", 12),
    Sketcher.Constraint("Horizontal", 13),
    Sketcher.Constraint("Vertical", 14),
    Sketcher.Constraint("Horizontal", 15),
    Sketcher.Constraint("Vertical", 16),
    Sketcher.Constraint("Horizontal", 17),
    Sketcher.Constraint("Vertical", 18),
    Sketcher.Constraint("Horizontal", 19),
    Sketcher.Constraint("Vertical", 20),
    Sketcher.Constraint("Horizontal", 21),
    Sketcher.Constraint("Vertical", 22),
    Sketcher.Constraint("Horizontal", 23),
    Sketcher.Constraint("Equal", 3, 5),
    Sketcher.Constraint("Equal", 7, 9),
    Sketcher.Constraint("Equal", 11, 13),
    Sketcher.Constraint("Equal", 15, 17),
    Sketcher.Constraint("Equal", 19, 21),
    Sketcher.Constraint("Equal", 2, 4),
    Sketcher.Constraint("Equal", 6, 8),
    Sketcher.Constraint("Equal", 10, 12),
    Sketcher.Constraint("Equal", 14, 16),
    Sketcher.Constraint("Equal", 18, 20),
    Sketcher.Constraint("DistanceX", 1, 2, 1, 1, Q("48 mm")),
    Sketcher.Constraint("DistanceY", 0, 2, 0, 1, Q("3.2 mm")),
    Sketcher.Constraint("DistanceY", 6, 2, 1, 2, Q("4 mm")),
    Sketcher.Constraint("DistanceY", 10, 2, 5, 2, Q("4 mm")),
    Sketcher.Constraint("DistanceY", 14, 2, 9, 2, Q("4 mm")),
    Sketcher.Constraint("DistanceY", 18, 2, 13, 2, Q("4 mm")),
    Sketcher.Constraint("DistanceY", 3, 2, 20, 2, Q("3 mm")),
    Sketcher.Constraint("DistanceX", 12, 2, 4, 2, Q("0.051802 mm")),
    Sketcher.Constraint("DistanceX", -1, 1, 4, 2, Q("24.205191 mm")),
    Sketcher.Constraint("DistanceX", -1, 1, 20, 2, Q("24.27626 mm")),
    Sketcher.Constraint("DistanceX", 12, 2, 8, 2, Q("0.019888 mm")),
    Sketcher.Constraint("DistanceX", -1, 1, 0, 2, Q("24.175605 mm")),
    Sketcher.Constraint("DistanceY", 0, 2, -1, 1, Q("17.454115 mm")),
    Sketcher.Constraint("DistanceX", -1, 1, 16, 2, Q("24.189333 mm")),
])
pocket9 = body.newObject("PartDesign::Pocket", "Pocket008")
pocket9.Profile = sketch20
pocket9.Length = 49
pocket9.Reversed = True

# Sketch on YZ plane
sketch21 = body.newObject("Sketcher::SketchObject", "Sketch020")
sketch21.AttachmentSupport = (doc.getObject("YZ_Plane"), [""])
sketch21.MapMode = "FlatFace"
sketch21.AttachmentOffset = App.Placement(App.Vector(0, 0, 31.066181), App.Rotation())
sketch21.addGeometry([
    Part.LineSegment(App.Vector(0, 7.5, 0), App.Vector(-49.059689, 7.5, 0)),
    Part.LineSegment(App.Vector(-49.059689, 7.5, 0), App.Vector(-49.059689, -7.5, 0)),
    Part.LineSegment(App.Vector(-49.059689, -7.5, 0), App.Vector(0, -7.5, 0)),
    Part.LineSegment(App.Vector(0, -7.5, 0), App.Vector(0, 7.5, 0)),
], False)
sketch21.addConstraint([
    Sketcher.Constraint("Coincident", 0, 2, 1, 1),
    Sketcher.Constraint("Coincident", 1, 2, 2, 1),
    Sketcher.Constraint("Coincident", 2, 2, 3, 1),
    Sketcher.Constraint("Coincident", 3, 2, 0, 1),
    Sketcher.Constraint("Horizontal", 0),
    Sketcher.Constraint("Vertical", 1),
    Sketcher.Constraint("Horizontal", 2),
    Sketcher.Constraint("Vertical", 3),
    Sketcher.Constraint("Symmetric", 2, 2, 3, 2, -1, 1),
    Sketcher.Constraint("DistanceY", 1, 2, 1, 1, Q("15 mm")),
    Sketcher.Constraint("DistanceX", 0, 2, 0, 1, Q("49.059689 mm")),
])
pocket10 = body.newObject("PartDesign::Pocket", "Pocket009")
pocket10.Profile = sketch21
pocket10.Length = 100

# Sketch on XZ plane
sketch22 = body.newObject("Sketcher::SketchObject", "Sketch021")
sketch22.AttachmentSupport = (doc.getObject("XZ_Plane"), [""])
sketch22.MapMode = "FlatFace"
sketch22.addGeometry(Part.Circle(App.Vector(3, 3.071565, 0), App.Vector(0, 0, 1), 4.25), False)
sketch22.addConstraint([
    Sketcher.Constraint("Diameter", 0, Q("8.5 mm")),
    Sketcher.Constraint("DistanceX", -1, 1, 0, 3, Q("3 mm")),
    Sketcher.Constraint("DistanceY", -1, 1, 0, 3, Q("3.071565 mm")),
])
pad10 = body.newObject("PartDesign::Pad", "Pad009")
pad10.Profile = sketch22
pad10.Length = 49

# Sketch on XZ plane
sketch23 = body.newObject("Sketcher::SketchObject", "Sketch022")
sketch23.AttachmentSupport = (doc.getObject("XZ_Plane"), [""])
sketch23.MapMode = "FlatFace"
sketch23.AttachmentOffset = App.Placement(App.Vector(0, 0, 49), App.Rotation())
sketch23.addGeometry(Part.Circle(App.Vector(3, 3.071565, 0), App.Vector(0, 0, 1), 6), False)
sketch23.addConstraint([
    Sketcher.Constraint("Diameter", 0, Q("12 mm")),
    Sketcher.Constraint("DistanceX", -1, 1, 0, 3, Q("3 mm")),
    Sketcher.Constraint("DistanceY", -1, 1, 0, 3, Q("3.071565 mm")),
])
pad11 = body.newObject("PartDesign::Pad", "Pad010")
pad11.Profile = sketch23
pad11.Length = 6
pad11.Reversed = True

# Sketch on XY plane
sketch24 = body.newObject("Sketcher::SketchObject", "Sketch023")
sketch24.AttachmentSupport = (doc.getObject("XY_Plane"), [""])
sketch24.MapMode = "FlatFace"
sketch24.AttachmentOffset = App.Placement(App.Vector(0, 0, -7.5), App.Rotation())
sketch24.addGeometry([
    Part.LineSegment(App.Vector(7.25, 0, 0), App.Vector(7.25, -40, 0)),
    Part.LineSegment(App.Vector(7.25, -40, 0), App.Vector(-1.25, -40, 0)),
    Part.LineSegment(App.Vector(-1.25, -40, 0), App.Vector(-1.25, 0, 0)),
    Part.LineSegment(App.Vector(-1.25, 0, 0), App.Vector(7.25, 0, 0)),
], False)
sketch24.addConstraint([
    Sketcher.Constraint("Coincident", 0, 2, 1, 1),
    Sketcher.Constraint("Coincident", 1, 2, 2, 1),
    Sketcher.Constraint("Coincident", 2, 2, 3, 1),
    Sketcher.Constraint("Coincident", 3, 2, 0, 1),
    Sketcher.Constraint("Vertical", 0),
    Sketcher.Constraint("Horizontal", 1),
    Sketcher.Constraint("Vertical", 2),
    Sketcher.Constraint("Horizontal", 3),
    Sketcher.Constraint("PointOnObject", 2, 2, -1),
    Sketcher.Constraint("DistanceY", 0, 2, 0, 1, Q("40 mm")),
    Sketcher.Constraint("DistanceX", 1, 2, 1, 1, Q("8.5 mm")),
    Sketcher.Constraint("DistanceX", -1, 1, 0, 2, Q("7.25 mm")),
])
pocket11 = body.newObject("PartDesign::Pocket", "Pocket010")
pocket11.Profile = sketch24
pocket11.Length = 11
pocket11.Reversed = True

# Sketch on XZ plane
sketch25 = body.newObject("Sketcher::SketchObject", "Sketch024")
sketch25.AttachmentSupport = (doc.getObject("XZ_Plane"), [""])
sketch25.MapMode = "FlatFace"
sketch25.AttachmentOffset = App.Placement(App.Vector(0, 0, 49), App.Rotation())
sketch25.addGeometry(Part.Circle(App.Vector(3, 3.071565, 0), App.Vector(0, 0, 1), 3.25), False)
sketch25.addConstraint([
    Sketcher.Constraint("Diameter", 0, Q("6.5 mm")),
    Sketcher.Constraint("DistanceX", -1, 1, 0, 3, Q("3 mm")),
    Sketcher.Constraint("DistanceY", -1, 1, 0, 3, Q("3.071565 mm")),
])
pocket12 = body.newObject("PartDesign::Pocket", "Pocket011")
pocket12.Profile = sketch25
pocket12.Length = 100

# Sketch on XY plane
sketch26 = body.newObject("Sketcher::SketchObject", "Sketch025")
sketch26.AttachmentSupport = (doc.getObject("XY_Plane"), [""])
sketch26.MapMode = "FlatFace"
sketch26.AttachmentOffset = App.Placement(App.Vector(0, 0, 3.5), App.Rotation())
sketch26.addGeometry([
    Part.LineSegment(App.Vector(7.22835, -24, 0), App.Vector(7.22835, -40, 0)),
    Part.LineSegment(App.Vector(7.22835, -40, 0), App.Vector(-1.22835, -40, 0)),
    Part.LineSegment(App.Vector(-1.22835, -40, 0), App.Vector(-1.22835, -24, 0)),
    Part.LineSegment(App.Vector(-1.22835, -24, 0), App.Vector(7.22835, -24, 0)),
], False)
sketch26.addConstraint([
    Sketcher.Constraint("Coincident", 0, 2, 1, 1),
    Sketcher.Constraint("Coincident", 1, 2, 2, 1),
    Sketcher.Constraint("Coincident", 2, 2, 3, 1),
    Sketcher.Constraint("Coincident", 3, 2, 0, 1),
    Sketcher.Constraint("Vertical", 0),
    Sketcher.Constraint("Horizontal", 1),
    Sketcher.Constraint("Vertical", 2),
    Sketcher.Constraint("Horizontal", 3),
    Sketcher.Constraint("DistanceY", 0, 2, 0, 1, Q("16 mm")),
    Sketcher.Constraint("DistanceY", 0, 2, -1, 1, Q("40 mm")),
    Sketcher.Constraint("DistanceX", 1, 2, 1, 1, Q("8.4567 mm")),
    Sketcher.Constraint("DistanceX", -1, 1, 0, 2, Q("7.22835 mm")),
])
pocket13 = body.newObject("PartDesign::Pocket", "Pocket012")
pocket13.Profile = sketch26
pocket13.Length = 1.25
pocket13.Reversed = True

# Sketch on an angled plane
sketch27 = body.newObject("Sketcher::SketchObject", "Sketch026")
sketch27.Placement = App.Placement(App.Vector(0.034159, 0, -2.963025), App.Rotation(App.Vector(-0.999933554, 0, -0.011527673), App.Vector(0, 1, 0), App.Vector(0.011527673, 0, -0.999933554), "ZXY"))
sketch27.addGeometry(Part.Circle(App.Vector(-3.035209, -45.926554, 0), App.Vector(0, 0, 1), 1.45), False)
sketch27.addConstraint([
    Sketcher.Constraint("Diameter", 0, Q("2.9 mm")),
    Sketcher.Constraint("DistanceX", 0, 3, -1, 1, Q("3.035209 mm")),
    Sketcher.Constraint("DistanceY", 0, 3, -1, 1, Q("45.926554 mm")),
])
doc.recompute()
hole3 = body.newObject("PartDesign::Hole", "Hole002")
hole3.Profile = sketch27
hole3.ThreadType = "None"
hole3.Diameter = 2.9
hole3.DepthType = "Dimension"
hole3.Depth = 4.128752
hole3.DrillPoint = "Angled"
hole3.DrillPointAngle = 118

# Sketch on an angled plane
sketch28 = body.newObject("Sketcher::SketchObject", "Sketch027")
sketch28.Placement = App.Placement(App.Vector(-4.276854, 0, 2.472644), App.Rotation(App.Vector(-0.500516339, 0, -0.86572709), App.Vector(0, -1, 0), App.Vector(-0.86572709, 0, 0.500516339), "ZXY"))
sketch28.addGeometry(Part.Circle(App.Vector(-4.160686, 45.980908, 0), App.Vector(0, 0, 1), 1.45), False)
sketch28.addConstraint([
    Sketcher.Constraint("Diameter", 0, Q("2.9 mm")),
    Sketcher.Constraint("DistanceX", 0, 3, -1, 1, Q("4.160686 mm")),
    Sketcher.Constraint("DistanceY", -1, 1, 0, 3, Q("45.980908 mm")),
])
doc.recompute()
hole4 = body.newObject("PartDesign::Hole", "Hole003")
hole4.Profile = sketch28
hole4.ThreadType = "None"
hole4.Diameter = 2.9
hole4.DepthType = "Dimension"
hole4.Depth = 4.128752
hole4.DrillPoint = "Angled"
hole4.DrillPointAngle = 118

# Sketch on an angled plane
sketch29 = body.newObject("Sketcher::SketchObject", "Sketch028")
sketch29.Placement = App.Placement(App.Vector(8.789218, 0, 5.03671), App.Rotation(App.Vector(-0.497202703, 0, 0.867634411), App.Vector(0, -0.999999999, 0), App.Vector(0.867634411, 0, 0.497202703), "ZXY"))
sketch29.addGeometry(Part.Circle(App.Vector(1.173387, 46.039954, 0), App.Vector(0, 0, 1), 1.45), False)
sketch29.addConstraint([
    Sketcher.Constraint("Diameter", 0, Q("2.9 mm")),
    Sketcher.Constraint("DistanceX", -1, 1, 0, 3, Q("1.173387 mm")),
    Sketcher.Constraint("DistanceY", -1, 1, 0, 3, Q("46.039954 mm")),
])
doc.recompute()
hole5 = body.newObject("PartDesign::Hole", "Hole004")
hole5.Profile = sketch29
hole5.ThreadType = "None"
hole5.Diameter = 2.9
hole5.DepthType = "Dimension"
hole5.Depth = 4.128752
hole5.DrillPoint = "Angled"
hole5.DrillPointAngle = 118

# Sketch on XZ plane
sketch30 = body.newObject("Sketcher::SketchObject", "Sketch029")
sketch30.AttachmentSupport = (doc.getObject("XZ_Plane"), [""])
sketch30.MapMode = "FlatFace"
sketch30.AttachmentOffset = App.Placement(App.Vector(0, 0, -3), App.Rotation())
sketch30.addGeometry([
    Part.LineSegment(App.Vector(-3.63748, 3.071565, 0), App.Vector(-3.63748, 7.5, 0)),
    Part.LineSegment(App.Vector(-3.63748, 7.5, 0), App.Vector(9.589628, 7.5, 0)),
    Part.LineSegment(App.Vector(9.589628, 7.5, 0), App.Vector(9.589628, 3.071565, 0)),
    Part.LineSegment(App.Vector(9.589628, 3.071565, 0), App.Vector(-3.63748, 3.071565, 0)),
], False)
sketch30.addConstraint([
    Sketcher.Constraint("Coincident", 0, 2, 1, 1),
    Sketcher.Constraint("Coincident", 1, 2, 2, 1),
    Sketcher.Constraint("Coincident", 2, 2, 3, 1),
    Sketcher.Constraint("Coincident", 3, 2, 0, 1),
    Sketcher.Constraint("Vertical", 0),
    Sketcher.Constraint("Horizontal", 1),
    Sketcher.Constraint("Vertical", 2),
    Sketcher.Constraint("Horizontal", 3),
    Sketcher.Constraint("DistanceY", -1, 1, 0, 2, Q("7.5 mm")),
    Sketcher.Constraint("DistanceX", 1, 1, 1, 2, Q("13.227108 mm")),
    Sketcher.Constraint("DistanceY", 0, 1, 0, 2, Q("4.428435 mm")),
    Sketcher.Constraint("DistanceX", 0, 2, -1, 1, Q("3.63748 mm")),
])
pad12 = body.newObject("PartDesign::Pad", "Pad011")
pad12.Profile = sketch30
pad12.Length = 46

# Sketch on XZ plane
sketch31 = body.newObject("Sketcher::SketchObject", "Sketch030")
sketch31.AttachmentSupport = (doc.getObject("XZ_Plane"), [""])
sketch31.MapMode = "FlatFace"
sketch31.AttachmentOffset = App.Placement(App.Vector(0, 0, 49), App.Rotation())
sketch31.addGeometry([
    Part.LineSegment(App.Vector(-0.25, 3.071565, 0), App.Vector(6.25, 3.071565, 0)),
    Part.ArcOfCircle(Part.Circle(App.Vector(3, 3.071565, 0), App.Vector(0, 0, 1), 3.25), math.radians(0), math.radians(180)),
], False)
sketch31.addConstraint([
    Sketcher.Constraint("Coincident", 0, 1, 1, 2),
    Sketcher.Constraint("Coincident", 1, 1, 0, 2),
    Sketcher.Constraint("Horizontal", 0),
    Sketcher.Constraint("Horizontal", 1, 3, 0, 1),
    Sketcher.Constraint("Radius", 1, Q("3.25 mm")),
    Sketcher.Constraint("DistanceX", -1, 1, 1, 3, Q("3 mm")),
    Sketcher.Constraint("DistanceY", -1, 1, 1, 3, Q("3.071565 mm")),
])
pocket14 = body.newObject("PartDesign::Pocket", "Pocket013")
pocket14.Profile = sketch31
pocket14.Length = 55

doc.recompute()
